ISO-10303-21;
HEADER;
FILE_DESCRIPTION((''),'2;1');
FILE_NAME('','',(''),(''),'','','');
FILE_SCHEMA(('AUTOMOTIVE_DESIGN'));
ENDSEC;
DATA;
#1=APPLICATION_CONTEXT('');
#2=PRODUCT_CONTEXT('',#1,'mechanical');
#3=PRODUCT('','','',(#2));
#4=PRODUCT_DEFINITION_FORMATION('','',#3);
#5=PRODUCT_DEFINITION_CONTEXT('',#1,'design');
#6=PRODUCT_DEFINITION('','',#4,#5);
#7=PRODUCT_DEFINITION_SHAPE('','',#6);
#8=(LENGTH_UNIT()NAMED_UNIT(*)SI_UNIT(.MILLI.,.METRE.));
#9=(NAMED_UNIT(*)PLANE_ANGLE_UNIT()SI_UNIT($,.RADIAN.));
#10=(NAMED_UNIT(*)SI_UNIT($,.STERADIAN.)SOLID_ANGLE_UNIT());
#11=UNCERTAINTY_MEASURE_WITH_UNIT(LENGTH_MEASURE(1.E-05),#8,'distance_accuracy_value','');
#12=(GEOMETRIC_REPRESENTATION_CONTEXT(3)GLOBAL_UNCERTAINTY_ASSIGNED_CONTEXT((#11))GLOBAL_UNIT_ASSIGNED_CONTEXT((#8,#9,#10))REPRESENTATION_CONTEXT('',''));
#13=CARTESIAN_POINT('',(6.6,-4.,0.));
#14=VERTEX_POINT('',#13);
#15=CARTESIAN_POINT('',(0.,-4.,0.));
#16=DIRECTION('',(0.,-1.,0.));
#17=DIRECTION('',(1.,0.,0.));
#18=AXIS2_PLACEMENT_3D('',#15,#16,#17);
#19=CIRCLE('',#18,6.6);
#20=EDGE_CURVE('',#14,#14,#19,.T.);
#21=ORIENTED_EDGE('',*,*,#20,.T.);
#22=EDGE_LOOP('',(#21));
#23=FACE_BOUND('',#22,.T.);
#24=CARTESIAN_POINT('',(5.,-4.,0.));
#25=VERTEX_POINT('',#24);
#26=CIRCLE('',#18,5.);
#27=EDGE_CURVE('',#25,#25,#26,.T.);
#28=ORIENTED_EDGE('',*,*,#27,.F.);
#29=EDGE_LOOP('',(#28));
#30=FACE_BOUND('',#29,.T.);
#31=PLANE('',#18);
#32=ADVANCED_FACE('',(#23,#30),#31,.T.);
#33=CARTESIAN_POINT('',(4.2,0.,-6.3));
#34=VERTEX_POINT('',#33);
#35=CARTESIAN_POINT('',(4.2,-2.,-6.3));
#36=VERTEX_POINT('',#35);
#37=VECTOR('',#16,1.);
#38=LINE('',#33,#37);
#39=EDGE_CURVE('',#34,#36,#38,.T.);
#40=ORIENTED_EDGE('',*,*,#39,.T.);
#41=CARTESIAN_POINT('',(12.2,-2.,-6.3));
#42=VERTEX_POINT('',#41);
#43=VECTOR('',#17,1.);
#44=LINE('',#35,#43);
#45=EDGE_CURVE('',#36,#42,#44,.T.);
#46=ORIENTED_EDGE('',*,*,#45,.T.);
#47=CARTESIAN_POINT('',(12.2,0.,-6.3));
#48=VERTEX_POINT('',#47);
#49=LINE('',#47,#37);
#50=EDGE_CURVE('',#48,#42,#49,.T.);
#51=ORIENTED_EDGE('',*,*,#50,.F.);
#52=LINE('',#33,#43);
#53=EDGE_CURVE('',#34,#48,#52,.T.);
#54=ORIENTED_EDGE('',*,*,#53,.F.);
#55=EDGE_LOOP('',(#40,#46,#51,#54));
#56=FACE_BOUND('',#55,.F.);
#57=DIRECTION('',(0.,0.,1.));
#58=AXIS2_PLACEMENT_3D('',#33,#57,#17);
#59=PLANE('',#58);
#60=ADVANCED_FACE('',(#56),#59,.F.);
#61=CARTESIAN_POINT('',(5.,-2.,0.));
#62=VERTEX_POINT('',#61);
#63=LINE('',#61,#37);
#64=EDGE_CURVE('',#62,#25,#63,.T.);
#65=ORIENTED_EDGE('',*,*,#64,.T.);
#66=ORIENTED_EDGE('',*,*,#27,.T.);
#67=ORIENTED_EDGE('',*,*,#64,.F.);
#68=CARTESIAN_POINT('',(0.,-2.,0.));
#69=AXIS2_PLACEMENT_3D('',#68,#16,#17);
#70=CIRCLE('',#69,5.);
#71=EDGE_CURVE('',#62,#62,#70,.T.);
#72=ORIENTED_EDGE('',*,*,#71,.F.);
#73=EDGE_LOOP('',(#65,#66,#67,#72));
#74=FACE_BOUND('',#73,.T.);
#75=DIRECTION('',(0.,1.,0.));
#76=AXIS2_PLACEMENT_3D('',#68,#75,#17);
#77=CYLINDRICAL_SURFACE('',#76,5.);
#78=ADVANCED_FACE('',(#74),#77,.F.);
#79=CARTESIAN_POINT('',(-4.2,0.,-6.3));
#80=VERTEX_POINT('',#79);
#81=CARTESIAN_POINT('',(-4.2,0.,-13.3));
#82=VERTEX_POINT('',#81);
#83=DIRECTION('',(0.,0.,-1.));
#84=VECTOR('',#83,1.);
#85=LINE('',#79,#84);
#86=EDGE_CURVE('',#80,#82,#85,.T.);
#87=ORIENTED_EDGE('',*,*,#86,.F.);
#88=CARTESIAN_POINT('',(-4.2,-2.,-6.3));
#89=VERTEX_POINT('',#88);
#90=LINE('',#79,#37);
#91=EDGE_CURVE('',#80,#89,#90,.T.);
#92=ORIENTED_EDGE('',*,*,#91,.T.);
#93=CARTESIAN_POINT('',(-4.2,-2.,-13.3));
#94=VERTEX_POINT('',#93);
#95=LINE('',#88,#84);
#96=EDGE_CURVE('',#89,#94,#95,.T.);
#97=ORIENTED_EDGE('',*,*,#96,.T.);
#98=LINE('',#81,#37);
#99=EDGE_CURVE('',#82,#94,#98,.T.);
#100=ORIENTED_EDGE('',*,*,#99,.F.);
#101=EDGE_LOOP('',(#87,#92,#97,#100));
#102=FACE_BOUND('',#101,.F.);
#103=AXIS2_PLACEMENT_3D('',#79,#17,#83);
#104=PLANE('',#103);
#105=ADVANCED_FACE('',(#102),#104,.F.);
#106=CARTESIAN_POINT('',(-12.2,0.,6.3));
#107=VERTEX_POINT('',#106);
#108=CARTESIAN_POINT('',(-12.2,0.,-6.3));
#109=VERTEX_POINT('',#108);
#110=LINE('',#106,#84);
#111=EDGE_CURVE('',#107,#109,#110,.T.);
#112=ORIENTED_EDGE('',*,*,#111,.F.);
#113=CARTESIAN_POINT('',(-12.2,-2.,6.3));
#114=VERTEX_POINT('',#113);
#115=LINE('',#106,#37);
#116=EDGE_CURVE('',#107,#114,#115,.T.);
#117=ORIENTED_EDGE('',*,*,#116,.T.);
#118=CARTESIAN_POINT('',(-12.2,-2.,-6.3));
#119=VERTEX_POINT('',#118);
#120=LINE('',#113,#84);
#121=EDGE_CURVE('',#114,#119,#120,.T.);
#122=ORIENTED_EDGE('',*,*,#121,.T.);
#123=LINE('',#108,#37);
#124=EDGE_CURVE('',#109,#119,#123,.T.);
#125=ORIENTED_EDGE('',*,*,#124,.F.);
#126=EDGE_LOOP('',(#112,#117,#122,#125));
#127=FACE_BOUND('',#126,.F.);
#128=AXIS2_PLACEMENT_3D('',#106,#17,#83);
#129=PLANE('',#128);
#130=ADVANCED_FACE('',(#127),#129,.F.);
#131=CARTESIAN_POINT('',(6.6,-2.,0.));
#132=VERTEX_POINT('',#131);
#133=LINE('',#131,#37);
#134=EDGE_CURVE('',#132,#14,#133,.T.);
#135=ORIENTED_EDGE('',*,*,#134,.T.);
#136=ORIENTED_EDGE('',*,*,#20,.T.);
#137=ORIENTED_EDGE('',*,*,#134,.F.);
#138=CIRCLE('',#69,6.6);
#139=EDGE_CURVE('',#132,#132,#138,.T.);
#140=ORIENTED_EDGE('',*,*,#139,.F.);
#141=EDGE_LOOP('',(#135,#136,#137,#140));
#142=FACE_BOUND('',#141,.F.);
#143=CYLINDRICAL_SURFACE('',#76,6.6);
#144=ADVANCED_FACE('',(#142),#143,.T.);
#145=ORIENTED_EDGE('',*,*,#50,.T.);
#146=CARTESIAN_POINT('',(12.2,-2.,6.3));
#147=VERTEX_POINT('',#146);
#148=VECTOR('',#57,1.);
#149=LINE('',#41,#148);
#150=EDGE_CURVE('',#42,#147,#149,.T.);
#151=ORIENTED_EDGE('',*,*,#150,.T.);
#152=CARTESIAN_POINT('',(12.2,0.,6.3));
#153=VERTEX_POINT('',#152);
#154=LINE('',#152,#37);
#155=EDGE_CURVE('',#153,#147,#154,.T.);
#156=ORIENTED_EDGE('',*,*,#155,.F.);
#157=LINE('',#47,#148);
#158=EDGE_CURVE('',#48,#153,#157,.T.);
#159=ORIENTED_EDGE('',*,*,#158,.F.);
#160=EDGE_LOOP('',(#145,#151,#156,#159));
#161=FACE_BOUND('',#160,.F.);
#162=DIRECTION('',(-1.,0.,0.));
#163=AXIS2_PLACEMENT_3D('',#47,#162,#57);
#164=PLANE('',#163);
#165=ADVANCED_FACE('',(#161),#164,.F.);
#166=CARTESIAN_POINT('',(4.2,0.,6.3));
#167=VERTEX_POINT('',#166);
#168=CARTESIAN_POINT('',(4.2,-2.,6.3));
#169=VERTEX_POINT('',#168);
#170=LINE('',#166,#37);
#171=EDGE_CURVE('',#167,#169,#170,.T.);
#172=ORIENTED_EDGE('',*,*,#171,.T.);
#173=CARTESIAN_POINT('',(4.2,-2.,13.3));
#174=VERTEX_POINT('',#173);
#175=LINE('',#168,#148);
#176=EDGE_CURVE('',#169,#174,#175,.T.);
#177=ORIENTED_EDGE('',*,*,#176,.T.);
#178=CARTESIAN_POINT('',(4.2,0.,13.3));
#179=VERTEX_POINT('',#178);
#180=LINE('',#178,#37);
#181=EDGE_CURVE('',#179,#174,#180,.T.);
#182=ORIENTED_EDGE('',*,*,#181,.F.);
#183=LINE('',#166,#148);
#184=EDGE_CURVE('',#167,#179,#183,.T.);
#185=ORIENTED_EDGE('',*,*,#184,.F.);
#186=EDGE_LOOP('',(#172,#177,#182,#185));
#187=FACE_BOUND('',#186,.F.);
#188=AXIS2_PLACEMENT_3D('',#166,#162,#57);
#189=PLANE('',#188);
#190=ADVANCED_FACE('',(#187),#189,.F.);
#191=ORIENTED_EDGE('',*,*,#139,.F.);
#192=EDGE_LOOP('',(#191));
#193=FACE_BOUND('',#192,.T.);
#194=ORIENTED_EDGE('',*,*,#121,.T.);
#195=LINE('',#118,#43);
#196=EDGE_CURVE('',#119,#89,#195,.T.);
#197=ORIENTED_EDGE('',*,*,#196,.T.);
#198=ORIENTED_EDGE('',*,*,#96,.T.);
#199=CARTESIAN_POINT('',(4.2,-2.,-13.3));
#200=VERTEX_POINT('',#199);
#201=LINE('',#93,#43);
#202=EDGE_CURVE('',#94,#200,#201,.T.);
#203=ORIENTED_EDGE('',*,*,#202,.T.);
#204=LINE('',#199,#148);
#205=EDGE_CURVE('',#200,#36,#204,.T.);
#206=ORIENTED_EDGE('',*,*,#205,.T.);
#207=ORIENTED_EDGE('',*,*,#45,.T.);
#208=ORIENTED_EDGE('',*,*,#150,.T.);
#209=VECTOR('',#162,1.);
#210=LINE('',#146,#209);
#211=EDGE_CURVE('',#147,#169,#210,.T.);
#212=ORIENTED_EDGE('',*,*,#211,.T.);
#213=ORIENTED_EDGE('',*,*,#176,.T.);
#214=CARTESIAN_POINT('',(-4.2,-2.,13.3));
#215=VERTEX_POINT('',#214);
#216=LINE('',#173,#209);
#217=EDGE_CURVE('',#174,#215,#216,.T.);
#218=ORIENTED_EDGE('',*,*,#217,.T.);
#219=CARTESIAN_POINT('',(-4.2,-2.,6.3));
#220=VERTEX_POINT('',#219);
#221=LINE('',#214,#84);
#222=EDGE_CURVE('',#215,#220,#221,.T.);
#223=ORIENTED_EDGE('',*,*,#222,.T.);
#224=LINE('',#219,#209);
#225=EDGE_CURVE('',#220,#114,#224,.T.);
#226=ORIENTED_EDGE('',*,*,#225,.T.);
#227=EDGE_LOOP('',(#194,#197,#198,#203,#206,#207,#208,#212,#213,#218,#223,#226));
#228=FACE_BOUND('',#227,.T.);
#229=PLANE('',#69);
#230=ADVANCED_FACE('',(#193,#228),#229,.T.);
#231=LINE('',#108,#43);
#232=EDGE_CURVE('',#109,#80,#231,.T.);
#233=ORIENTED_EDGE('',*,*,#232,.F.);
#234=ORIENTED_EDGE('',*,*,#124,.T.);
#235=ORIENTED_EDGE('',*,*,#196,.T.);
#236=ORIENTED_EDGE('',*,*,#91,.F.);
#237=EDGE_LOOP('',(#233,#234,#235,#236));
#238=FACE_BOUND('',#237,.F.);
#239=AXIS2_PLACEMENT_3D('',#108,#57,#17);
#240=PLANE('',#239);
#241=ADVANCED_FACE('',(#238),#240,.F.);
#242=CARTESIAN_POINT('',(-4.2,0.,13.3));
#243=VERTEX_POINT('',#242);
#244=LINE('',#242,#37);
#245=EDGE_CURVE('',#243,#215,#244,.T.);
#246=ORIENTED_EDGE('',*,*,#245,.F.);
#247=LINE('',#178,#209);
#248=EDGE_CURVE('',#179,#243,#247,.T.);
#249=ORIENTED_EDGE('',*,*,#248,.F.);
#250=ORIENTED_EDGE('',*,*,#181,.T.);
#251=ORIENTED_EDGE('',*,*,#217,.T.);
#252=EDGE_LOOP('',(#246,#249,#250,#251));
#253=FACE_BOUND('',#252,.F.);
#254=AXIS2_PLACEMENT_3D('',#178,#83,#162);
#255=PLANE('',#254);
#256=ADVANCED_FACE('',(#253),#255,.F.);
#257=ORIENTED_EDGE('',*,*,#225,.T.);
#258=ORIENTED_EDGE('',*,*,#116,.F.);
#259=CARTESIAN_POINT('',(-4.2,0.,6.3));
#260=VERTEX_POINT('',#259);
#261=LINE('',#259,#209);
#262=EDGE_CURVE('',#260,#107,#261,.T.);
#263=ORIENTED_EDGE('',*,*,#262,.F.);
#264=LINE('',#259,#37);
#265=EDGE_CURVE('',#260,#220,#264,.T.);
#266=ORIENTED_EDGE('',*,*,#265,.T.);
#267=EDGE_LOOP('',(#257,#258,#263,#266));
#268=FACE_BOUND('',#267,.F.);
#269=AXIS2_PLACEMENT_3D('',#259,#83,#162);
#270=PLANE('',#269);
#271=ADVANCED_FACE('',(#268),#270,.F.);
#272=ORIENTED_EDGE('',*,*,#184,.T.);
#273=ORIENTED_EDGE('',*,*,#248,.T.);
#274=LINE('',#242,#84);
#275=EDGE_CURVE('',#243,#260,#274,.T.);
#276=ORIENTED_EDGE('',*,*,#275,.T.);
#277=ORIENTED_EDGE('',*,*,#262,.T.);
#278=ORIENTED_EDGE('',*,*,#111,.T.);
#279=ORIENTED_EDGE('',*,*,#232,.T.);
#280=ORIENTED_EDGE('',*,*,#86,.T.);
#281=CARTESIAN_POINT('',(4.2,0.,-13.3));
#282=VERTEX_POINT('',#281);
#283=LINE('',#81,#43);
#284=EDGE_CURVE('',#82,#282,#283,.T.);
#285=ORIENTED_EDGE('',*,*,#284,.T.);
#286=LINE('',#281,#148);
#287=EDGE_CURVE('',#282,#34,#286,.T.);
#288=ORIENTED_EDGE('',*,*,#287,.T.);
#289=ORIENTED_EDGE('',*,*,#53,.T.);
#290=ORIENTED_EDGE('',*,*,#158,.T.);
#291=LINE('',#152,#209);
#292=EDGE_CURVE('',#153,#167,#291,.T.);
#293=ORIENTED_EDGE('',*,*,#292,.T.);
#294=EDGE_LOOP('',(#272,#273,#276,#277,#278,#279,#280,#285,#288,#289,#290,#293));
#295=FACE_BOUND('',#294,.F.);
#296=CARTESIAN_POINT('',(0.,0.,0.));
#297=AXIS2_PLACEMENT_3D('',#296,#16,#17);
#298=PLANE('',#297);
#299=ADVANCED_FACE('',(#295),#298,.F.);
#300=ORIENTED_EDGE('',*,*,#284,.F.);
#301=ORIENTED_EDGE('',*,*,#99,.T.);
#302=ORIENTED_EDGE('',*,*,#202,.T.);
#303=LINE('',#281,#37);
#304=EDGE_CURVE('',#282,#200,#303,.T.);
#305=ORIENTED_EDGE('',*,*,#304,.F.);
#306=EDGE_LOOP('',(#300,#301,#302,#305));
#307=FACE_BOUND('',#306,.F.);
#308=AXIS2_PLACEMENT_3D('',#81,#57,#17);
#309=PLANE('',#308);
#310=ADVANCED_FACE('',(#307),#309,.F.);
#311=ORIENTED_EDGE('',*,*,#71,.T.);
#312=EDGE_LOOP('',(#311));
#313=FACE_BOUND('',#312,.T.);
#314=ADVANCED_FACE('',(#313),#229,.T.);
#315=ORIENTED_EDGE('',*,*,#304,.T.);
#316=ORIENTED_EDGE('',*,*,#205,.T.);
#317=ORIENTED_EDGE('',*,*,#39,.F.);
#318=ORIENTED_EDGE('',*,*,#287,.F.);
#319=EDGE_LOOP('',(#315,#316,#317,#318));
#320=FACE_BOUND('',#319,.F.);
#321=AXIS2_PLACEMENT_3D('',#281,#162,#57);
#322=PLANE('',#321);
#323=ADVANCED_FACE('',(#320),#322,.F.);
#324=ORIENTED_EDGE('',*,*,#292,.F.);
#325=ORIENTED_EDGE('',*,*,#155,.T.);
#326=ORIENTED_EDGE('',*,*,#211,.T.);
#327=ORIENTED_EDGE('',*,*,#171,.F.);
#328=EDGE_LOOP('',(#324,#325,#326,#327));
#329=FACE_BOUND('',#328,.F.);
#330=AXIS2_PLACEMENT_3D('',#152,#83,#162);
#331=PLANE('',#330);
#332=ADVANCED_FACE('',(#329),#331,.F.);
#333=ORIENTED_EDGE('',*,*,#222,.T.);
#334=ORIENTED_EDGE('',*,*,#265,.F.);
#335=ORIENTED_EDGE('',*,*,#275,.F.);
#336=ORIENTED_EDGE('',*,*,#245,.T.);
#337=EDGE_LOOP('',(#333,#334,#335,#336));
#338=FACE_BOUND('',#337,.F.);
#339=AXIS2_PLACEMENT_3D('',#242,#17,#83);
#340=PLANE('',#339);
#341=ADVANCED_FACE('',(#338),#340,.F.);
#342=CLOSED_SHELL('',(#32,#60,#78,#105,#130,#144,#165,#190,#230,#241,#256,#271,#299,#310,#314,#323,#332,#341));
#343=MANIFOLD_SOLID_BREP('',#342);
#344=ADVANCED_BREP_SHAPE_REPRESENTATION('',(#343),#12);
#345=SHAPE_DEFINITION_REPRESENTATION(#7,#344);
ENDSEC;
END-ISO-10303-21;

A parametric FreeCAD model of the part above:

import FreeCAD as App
import Part
import Sketcher
Q = App.Units.Quantity

doc = App.newDocument("Part")
body = doc.addObject("PartDesign::Body", "Body")

# Sketch on XZ plane
sketch1 = body.newObject("Sketcher::SketchObject", "Sketch")
sketch1.AttachmentSupport = (doc.getObject("XZ_Plane"), [""])
sketch1.MapMode = "FlatFace"
sketch1.addGeometry(Part.LineSegment(App.Vector(4.2, 13.3, 0), App.Vector(-4.2, 13.3, 0)), False)
sketch1.addGeometry(Part.LineSegment(App.Vector(-4.2, 13.3, 0), App.Vector(-4.2, 6.3, 0)), False)
sketch1.addGeometry(Part.LineSegment(App.Vector(-4.2, 6.3, 0), App.Vector(-12.2, 6.3, 0)), False)
sketch1.addGeometry(Part.LineSegment(App.Vector(-12.2, 6.3, 0), App.Vector(-12.2, -6.3, 0)), False)
sketch1.addGeometry(Part.LineSegment(App.Vector(-12.2, -6.3, 0), App.Vector(-4.2, -6.3, 0)), False)
sketch1.addGeometry(Part.LineSegment(App.Vector(-4.2, -6.3, 0), App.Vector(-4.2, -13.3, 0)), False)
sketch1.addGeometry(Part.LineSegment(App.Vector(-4.2, -13.3, 0), App.Vector(4.2, -13.3, 0)), False)
sketch1.addGeometry(Part.LineSegment(App.Vector(4.2, -13.3, 0), App.Vector(4.2, -6.3, 0)), False)
sketch1.addGeometry(Part.LineSegment(App.Vector(4.2, -6.3, 0), App.Vector(12.2, -6.3, 0)), False)
sketch1.addGeometry(Part.LineSegment(App.Vector(12.2, -6.3, 0), App.Vector(12.2, 6.3, 0)), False)
sketch1.addGeometry(Part.LineSegment(App.Vector(12.2, 6.3, 0), App.Vector(4.2, 6.3, 0)), False)
sketch1.addGeometry(Part.LineSegment(App.Vector(4.2, 6.3, 0), App.Vector(4.2, 13.3, 0)), False)
sketch1.addConstraint(Sketcher.Constraint("Coincident", 0, 2, 1, 1))
sketch1.addConstraint(Sketcher.Constraint("Coincident", 1, 2, 2, 1))
sketch1.addConstraint(Sketcher.Constraint("Coincident", 2, 2, 3, 1))
sketch1.addConstraint(Sketcher.Constraint("Coincident", 3, 2, 4, 1))
sketch1.addConstraint(Sketcher.Constraint("Coincident", 4, 2, 5, 1))
sketch1.addConstraint(Sketcher.Constraint("Coincident", 5, 2, 6, 1))
sketch1.addConstraint(Sketcher.Constraint("Coincident", 6, 2, 7, 1))
sketch1.addConstraint(Sketcher.Constraint("Coincident", 7, 2, 8, 1))
sketch1.addConstraint(Sketcher.Constraint("Coincident", 8, 2, 9, 1))
sketch1.addConstraint(Sketcher.Constraint("Coincident", 9, 2, 10, 1))
sketch1.addConstraint(Sketcher.Constraint("Coincident", 10, 2, 11, 1))
sketch1.addConstraint(Sketcher.Constraint("Coincident", 11, 2, 0, 1))
sketch1.addConstraint(Sketcher.Constraint("Horizontal", 0))
sketch1.addConstraint(Sketcher.Constraint("Vertical", 1))
sketch1.addConstraint(Sketcher.Constraint("Horizontal", 2))
sketch1.addConstraint(Sketcher.Constraint("Vertical", 3))
sketch1.addConstraint(Sketcher.Constraint("Horizontal", 4))
sketch1.addConstraint(Sketcher.Constraint("Vertical", 5))
sketch1.addConstraint(Sketcher.Constraint("Horizontal", 6))
sketch1.addConstraint(Sketcher.Constraint("Vertical", 7))
sketch1.addConstraint(Sketcher.Constraint("Horizontal", 8))
sketch1.addConstraint(Sketcher.Constraint("Vertical", 9))
sketch1.addConstraint(Sketcher.Constraint("Horizontal", 10))
sketch1.addConstraint(Sketcher.Constraint("Vertical", 11))
sketch1.addConstraint(Sketcher.Constraint("Symmetric", 0, 2, 6, 2, -1, 1))
sketch1.addConstraint(Sketcher.Constraint("Symmetric", 2, 2, 8, 2, -1, 1))
sketch1.addConstraint(Sketcher.Constraint("Symmetric", 4, 2, 10, 2, -1, 1))
sketch1.addConstraint(Sketcher.Constraint("Symmetric", 4, 2, 7, 2, -2))
sketch1.addConstraint(Sketcher.Constraint("DistanceX", 2, 2, 2, 1, Q("8 mm")))
sketch1.addConstraint(Sketcher.Constraint("DistanceY", 1, 2, 1, 1, Q("7 mm")))
sketch1.addConstraint(Sketcher.Constraint("DistanceX", 0, 2, 0, 1, Q("8.4 mm")))
sketch1.addConstraint(Sketcher.Constraint("DistanceY", 3, 2, 3, 1, Q("12.6 mm")))
pad1 = body.newObject("PartDesign::Pad", "Pad")
pad1.Profile = sketch1
pad1.Length = 2

# Sketch on XZ plane
sketch2 = body.newObject("Sketcher::SketchObject", "Sketch001")
sketch2.AttachmentSupport = (doc.getObject("XZ_Plane"), [""])
sketch2.MapMode = "FlatFace"
sketch2.AttachmentOffset = App.Placement(App.Vector(0, 0, 2), App.Rotation())
sketch2.addGeometry(Part.Circle(App.Vector(0, 0, 0), App.Vector(0, 0, 1), 6.6), False)
sketch2.addGeometry(Part.Circle(App.Vector(0, 0, 0), App.Vector(0, 0, 1), 5), False)
sketch2.addConstraint(Sketcher.Constraint("Coincident", 0, 3, -1, 1))
sketch2.addConstraint(Sketcher.Constraint("Coincident", 1, 3, -1, 1))
sketch2.addConstraint(Sketcher.Constraint("Diameter", 1, Q("10 mm")))
sketch2.addConstraint(Sketcher.Constraint("Diameter", 0, Q("13.2 mm")))
pad2 = body.newObject("PartDesign::Pad", "Pad001")
pad2.Profile = sketch2
pad2.Length = 2

doc.recompute()
